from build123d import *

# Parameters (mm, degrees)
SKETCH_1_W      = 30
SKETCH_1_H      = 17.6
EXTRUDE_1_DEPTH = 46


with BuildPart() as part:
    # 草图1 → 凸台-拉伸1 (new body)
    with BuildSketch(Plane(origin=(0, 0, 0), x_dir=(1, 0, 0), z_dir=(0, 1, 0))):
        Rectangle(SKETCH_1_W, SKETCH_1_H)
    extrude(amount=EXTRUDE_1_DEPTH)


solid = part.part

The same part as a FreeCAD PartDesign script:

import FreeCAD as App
import Part
import Sketcher
from FreeCAD import Vector
Q = App.Units.Quantity


def add_polygon(sketch, points):
    """Adds a closed chain of lines whose ends are joined by coincident constraints."""
    first, n = sketch.GeometryCount, len(points)
    for a, b in zip(points, points[1:] + points[:1]):
        sketch.addGeometry(Part.LineSegment(App.Vector(*a, 0), App.Vector(*b, 0)), False)
    for i in range(n):
        sketch.addConstraint(Sketcher.Constraint("Coincident", first + i, 2, first + (i + 1) % n, 1))

doc = App.newDocument("Part")
body = doc.addObject("PartDesign::Body", "Body")

sketch1 = doc.addObject("Sketcher::SketchObject", "Sketch")
body.addObject(sketch1)
sketch1.AttachmentSupport = (doc.XZ_Plane, [""])
sketch1.MapMode = "FlatFace"
add_polygon(sketch1, [(-15, -8.8), (-15, 8.8), (15, 8.8), (15, -8.8)])
sketch1.addConstraint([
    Sketcher.Constraint("Vertical", 0),
    Sketcher.Constraint("Horizontal", 1),
    Sketcher.Constraint("Vertical", 2),
    Sketcher.Constraint("Horizontal", 3),
    Sketcher.Constraint("Symmetric", 0, 2, 2, 2, -1, 1),
    Sketcher.Constraint("DistanceX", 1, 1, 1, 2, Q("30 mm")),
    Sketcher.Constraint("DistanceY", 0, 1, 0, 2, Q("17.6 mm")),
])
pad1 = doc.addObject("PartDesign::Pad", "Pad")
body.addObject(pad1)
pad1.Profile = sketch1
pad1.Length = 46
pad1.Reversed = True

doc.recompute()
